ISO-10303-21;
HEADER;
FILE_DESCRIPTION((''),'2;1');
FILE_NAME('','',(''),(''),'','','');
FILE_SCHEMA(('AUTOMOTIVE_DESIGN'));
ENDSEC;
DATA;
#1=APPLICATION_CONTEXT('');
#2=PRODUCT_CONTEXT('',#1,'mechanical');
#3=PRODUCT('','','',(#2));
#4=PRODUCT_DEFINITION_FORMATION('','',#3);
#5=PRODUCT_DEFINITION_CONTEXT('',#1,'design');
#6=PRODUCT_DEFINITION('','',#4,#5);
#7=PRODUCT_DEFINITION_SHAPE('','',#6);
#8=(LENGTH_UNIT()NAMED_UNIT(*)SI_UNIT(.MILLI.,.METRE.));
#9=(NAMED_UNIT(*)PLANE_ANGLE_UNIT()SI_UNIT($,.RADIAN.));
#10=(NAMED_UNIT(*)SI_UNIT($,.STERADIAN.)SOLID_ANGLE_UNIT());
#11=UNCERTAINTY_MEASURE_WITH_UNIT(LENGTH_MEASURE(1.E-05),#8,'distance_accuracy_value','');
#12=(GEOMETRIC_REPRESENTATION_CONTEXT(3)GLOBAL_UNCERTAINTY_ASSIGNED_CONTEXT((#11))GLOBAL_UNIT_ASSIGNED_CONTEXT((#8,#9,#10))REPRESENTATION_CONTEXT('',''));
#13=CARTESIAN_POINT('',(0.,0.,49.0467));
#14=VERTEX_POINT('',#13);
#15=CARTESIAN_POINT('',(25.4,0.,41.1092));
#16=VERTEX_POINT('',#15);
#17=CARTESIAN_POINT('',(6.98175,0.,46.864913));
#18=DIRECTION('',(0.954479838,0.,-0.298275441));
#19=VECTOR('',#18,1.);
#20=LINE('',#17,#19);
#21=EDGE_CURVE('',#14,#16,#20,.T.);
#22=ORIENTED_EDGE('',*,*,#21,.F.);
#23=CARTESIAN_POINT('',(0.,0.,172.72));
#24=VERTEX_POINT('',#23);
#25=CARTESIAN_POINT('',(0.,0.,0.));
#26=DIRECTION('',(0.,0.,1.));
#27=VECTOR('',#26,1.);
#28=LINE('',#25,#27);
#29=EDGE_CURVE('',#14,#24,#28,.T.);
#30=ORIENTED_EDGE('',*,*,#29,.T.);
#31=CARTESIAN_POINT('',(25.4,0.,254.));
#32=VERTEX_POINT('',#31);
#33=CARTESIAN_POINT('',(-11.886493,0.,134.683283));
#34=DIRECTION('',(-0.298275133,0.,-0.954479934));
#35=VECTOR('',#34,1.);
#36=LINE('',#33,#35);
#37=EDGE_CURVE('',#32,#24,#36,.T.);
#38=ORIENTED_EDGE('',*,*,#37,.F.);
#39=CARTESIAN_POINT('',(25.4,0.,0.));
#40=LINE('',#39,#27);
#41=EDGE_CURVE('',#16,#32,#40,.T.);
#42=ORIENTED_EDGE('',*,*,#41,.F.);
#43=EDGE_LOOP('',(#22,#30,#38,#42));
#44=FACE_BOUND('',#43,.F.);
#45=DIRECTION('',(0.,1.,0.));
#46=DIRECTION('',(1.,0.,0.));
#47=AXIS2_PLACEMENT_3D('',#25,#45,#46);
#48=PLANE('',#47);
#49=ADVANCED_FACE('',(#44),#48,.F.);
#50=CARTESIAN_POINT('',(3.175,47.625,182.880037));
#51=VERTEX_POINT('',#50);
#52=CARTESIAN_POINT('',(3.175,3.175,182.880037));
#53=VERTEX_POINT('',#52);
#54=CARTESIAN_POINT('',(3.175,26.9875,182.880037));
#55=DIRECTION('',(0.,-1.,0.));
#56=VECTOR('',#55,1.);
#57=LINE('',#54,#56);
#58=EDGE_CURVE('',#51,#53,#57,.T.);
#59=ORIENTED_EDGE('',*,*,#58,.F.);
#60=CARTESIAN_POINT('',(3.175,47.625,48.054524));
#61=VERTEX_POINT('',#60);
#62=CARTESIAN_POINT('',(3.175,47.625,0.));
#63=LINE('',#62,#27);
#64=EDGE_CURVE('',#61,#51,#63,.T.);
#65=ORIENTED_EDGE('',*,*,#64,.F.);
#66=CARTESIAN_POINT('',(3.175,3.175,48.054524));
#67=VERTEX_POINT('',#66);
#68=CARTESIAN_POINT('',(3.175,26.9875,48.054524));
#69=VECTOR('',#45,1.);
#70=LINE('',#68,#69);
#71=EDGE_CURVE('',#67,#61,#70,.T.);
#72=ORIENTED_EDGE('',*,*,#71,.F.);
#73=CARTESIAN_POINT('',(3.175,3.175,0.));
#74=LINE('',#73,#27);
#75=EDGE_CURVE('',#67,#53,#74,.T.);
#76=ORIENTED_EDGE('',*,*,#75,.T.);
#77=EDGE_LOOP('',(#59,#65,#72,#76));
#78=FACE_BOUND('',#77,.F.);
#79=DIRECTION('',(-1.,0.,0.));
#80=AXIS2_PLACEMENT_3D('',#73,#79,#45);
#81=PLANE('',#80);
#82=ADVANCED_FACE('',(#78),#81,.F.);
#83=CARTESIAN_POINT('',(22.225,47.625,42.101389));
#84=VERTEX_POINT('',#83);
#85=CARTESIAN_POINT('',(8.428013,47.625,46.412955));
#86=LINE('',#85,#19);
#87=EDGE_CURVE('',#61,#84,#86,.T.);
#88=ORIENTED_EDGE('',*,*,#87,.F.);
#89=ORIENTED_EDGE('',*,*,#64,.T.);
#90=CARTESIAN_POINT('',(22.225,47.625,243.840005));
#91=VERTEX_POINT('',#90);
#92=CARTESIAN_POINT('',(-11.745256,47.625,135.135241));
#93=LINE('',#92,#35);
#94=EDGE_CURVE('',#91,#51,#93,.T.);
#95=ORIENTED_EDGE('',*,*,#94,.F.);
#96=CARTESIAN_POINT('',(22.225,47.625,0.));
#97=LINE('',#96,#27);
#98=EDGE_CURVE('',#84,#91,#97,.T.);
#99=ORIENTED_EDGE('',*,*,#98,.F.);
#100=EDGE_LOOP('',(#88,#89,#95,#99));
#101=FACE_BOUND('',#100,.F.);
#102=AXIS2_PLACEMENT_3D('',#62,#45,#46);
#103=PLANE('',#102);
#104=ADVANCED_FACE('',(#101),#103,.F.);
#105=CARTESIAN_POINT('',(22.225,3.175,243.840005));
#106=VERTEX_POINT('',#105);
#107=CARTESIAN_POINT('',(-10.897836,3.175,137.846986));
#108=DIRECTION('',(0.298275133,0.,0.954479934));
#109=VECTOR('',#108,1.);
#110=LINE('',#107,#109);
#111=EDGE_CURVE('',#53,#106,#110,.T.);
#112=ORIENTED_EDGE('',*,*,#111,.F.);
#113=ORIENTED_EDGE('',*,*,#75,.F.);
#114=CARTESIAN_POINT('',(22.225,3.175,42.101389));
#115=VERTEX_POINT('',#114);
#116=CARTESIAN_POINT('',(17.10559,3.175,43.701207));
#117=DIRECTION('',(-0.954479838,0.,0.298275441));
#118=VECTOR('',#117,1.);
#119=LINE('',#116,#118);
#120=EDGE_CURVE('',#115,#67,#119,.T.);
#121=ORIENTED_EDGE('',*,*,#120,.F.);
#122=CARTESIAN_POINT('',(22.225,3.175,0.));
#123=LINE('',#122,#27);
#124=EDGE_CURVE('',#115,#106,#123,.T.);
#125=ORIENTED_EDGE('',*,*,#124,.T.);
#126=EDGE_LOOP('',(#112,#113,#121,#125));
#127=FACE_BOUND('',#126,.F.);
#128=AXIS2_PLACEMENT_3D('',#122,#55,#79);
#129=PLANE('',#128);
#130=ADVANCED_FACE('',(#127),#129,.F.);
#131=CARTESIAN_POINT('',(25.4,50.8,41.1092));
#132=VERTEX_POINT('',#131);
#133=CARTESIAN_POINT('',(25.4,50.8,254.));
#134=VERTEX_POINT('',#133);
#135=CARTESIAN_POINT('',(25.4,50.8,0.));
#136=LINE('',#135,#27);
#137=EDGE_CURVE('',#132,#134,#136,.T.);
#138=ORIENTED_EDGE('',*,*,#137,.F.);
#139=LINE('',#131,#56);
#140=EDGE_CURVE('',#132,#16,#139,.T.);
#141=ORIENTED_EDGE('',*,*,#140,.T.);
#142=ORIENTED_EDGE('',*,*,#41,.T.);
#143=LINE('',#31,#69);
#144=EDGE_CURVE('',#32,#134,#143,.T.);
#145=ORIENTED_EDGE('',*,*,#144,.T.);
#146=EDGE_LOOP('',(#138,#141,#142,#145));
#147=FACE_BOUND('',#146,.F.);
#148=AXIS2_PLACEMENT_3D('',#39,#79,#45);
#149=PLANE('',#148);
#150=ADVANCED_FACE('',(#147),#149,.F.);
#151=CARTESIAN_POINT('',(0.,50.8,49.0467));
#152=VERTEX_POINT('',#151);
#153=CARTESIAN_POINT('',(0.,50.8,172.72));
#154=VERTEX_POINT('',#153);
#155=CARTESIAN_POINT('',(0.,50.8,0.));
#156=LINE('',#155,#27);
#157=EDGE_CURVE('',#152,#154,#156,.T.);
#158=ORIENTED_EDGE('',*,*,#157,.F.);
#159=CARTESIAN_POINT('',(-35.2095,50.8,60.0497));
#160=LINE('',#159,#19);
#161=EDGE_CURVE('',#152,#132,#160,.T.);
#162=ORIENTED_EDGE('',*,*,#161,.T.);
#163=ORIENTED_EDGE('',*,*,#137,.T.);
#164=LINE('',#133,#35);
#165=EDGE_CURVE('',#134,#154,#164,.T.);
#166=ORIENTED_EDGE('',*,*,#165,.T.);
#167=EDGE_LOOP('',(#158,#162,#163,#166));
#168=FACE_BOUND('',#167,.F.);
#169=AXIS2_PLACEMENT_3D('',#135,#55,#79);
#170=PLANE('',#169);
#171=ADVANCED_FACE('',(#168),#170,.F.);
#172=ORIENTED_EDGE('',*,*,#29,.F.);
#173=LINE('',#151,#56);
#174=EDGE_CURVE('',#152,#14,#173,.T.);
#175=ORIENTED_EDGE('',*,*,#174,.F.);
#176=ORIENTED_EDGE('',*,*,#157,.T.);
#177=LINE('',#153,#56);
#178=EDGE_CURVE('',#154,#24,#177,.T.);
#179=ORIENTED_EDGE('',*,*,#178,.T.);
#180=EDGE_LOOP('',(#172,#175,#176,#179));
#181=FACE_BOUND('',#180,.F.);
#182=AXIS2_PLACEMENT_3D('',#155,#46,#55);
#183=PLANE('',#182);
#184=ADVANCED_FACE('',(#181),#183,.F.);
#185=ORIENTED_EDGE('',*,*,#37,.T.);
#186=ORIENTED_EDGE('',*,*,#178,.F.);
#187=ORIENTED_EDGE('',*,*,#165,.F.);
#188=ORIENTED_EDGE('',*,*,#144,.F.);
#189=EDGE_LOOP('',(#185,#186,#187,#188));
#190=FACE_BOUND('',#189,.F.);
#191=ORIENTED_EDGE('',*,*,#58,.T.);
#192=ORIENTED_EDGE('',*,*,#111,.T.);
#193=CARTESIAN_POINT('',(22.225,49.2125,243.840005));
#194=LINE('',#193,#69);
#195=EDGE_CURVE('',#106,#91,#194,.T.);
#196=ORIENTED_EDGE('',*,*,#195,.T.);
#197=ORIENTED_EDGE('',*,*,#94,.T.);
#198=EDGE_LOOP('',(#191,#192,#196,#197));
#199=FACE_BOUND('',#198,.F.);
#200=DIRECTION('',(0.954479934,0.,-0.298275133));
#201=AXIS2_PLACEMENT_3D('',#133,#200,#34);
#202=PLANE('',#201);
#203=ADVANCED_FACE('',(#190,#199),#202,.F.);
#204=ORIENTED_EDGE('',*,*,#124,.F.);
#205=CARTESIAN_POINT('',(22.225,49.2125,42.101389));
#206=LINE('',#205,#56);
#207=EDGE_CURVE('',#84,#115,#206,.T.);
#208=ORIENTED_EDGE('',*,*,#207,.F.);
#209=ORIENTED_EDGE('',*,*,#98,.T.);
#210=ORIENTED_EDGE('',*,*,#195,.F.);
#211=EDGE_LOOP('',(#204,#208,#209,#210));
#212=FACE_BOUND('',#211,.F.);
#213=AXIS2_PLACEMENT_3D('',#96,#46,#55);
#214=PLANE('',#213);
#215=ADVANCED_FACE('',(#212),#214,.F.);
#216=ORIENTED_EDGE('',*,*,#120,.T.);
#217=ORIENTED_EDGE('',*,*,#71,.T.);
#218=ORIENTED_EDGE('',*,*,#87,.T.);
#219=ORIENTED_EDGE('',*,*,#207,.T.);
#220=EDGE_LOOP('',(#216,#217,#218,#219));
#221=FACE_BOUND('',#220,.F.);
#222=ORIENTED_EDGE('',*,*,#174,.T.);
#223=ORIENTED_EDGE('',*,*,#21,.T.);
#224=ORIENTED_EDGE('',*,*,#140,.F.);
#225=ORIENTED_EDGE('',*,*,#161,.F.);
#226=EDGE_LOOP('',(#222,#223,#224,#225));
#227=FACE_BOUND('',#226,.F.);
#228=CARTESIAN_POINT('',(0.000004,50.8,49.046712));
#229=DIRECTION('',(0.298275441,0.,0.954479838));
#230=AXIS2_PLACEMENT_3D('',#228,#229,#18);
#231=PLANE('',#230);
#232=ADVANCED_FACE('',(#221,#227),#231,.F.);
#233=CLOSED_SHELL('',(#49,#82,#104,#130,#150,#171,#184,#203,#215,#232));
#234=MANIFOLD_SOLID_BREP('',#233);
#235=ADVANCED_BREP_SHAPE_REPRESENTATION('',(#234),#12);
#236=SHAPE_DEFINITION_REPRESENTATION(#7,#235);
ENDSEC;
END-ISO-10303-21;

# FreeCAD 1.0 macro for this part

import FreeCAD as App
import Part
import Sketcher

V = App.Vector
Q = App.Units.Quantity

doc = App.newDocument("Part")
body = doc.addObject("PartDesign::Body", "Body")

# Sketch on XY plane
sketch1 = body.newObject("Sketcher::SketchObject", "Sketch")
sketch1.AttachmentSupport = (doc.getObject("XY_Plane"), [""])
sketch1.MapMode = "FlatFace"
sketch1.addGeometry(Part.LineSegment(V(0, 50.8, 0), V(0, 0, 0)), False)
sketch1.addGeometry(Part.LineSegment(V(0, 0, 0), V(25.4, 0, 0)), False)
sketch1.addGeometry(Part.LineSegment(V(25.4, 0, 0), V(25.4, 50.8, 0)), False)
sketch1.addGeometry(Part.LineSegment(V(25.4, 50.8, 0), V(0, 50.8, 0)), False)
sketch1.addGeometry(Part.LineSegment(V(3.175, 47.625, 0), V(22.225, 47.625, 0)), False)
sketch1.addGeometry(Part.LineSegment(V(22.225, 47.625, 0), V(22.225, 3.175, 0)), False)
sketch1.addGeometry(Part.LineSegment(V(22.225, 3.175, 0), V(3.175, 3.175, 0)), False)
sketch1.addGeometry(Part.LineSegment(V(3.175, 3.175, 0), V(3.175, 47.625, 0)), False)
sketch1.addConstraint(Sketcher.Constraint("Coincident", 0, 2, 1, 1))
sketch1.addConstraint(Sketcher.Constraint("Coincident", 1, 2, 2, 1))
sketch1.addConstraint(Sketcher.Constraint("Coincident", 2, 2, 3, 1))
sketch1.addConstraint(Sketcher.Constraint("Coincident", 3, 2, 0, 1))
sketch1.addConstraint(Sketcher.Constraint("Coincident", 4, 2, 5, 1))
sketch1.addConstraint(Sketcher.Constraint("Coincident", 5, 2, 6, 1))
sketch1.addConstraint(Sketcher.Constraint("Coincident", 6, 2, 7, 1))
sketch1.addConstraint(Sketcher.Constraint("Coincident", 7, 2, 4, 1))
sketch1.addConstraint(Sketcher.Constraint("Vertical", 0))
sketch1.addConstraint(Sketcher.Constraint("Horizontal", 1))
sketch1.addConstraint(Sketcher.Constraint("Vertical", 2))
sketch1.addConstraint(Sketcher.Constraint("Horizontal", 3))
sketch1.addConstraint(Sketcher.Constraint("Horizontal", 4))
sketch1.addConstraint(Sketcher.Constraint("Vertical", 5))
sketch1.addConstraint(Sketcher.Constraint("Horizontal", 6))
sketch1.addConstraint(Sketcher.Constraint("Vertical", 7))
sketch1.addConstraint(Sketcher.Constraint("Coincident", 0, 2, -1, 1))
sketch1.addConstraint(Sketcher.Constraint("DistanceX", 1, 1, 1, 2, Q("1 in")))
sketch1.addConstraint(Sketcher.Constraint("DistanceY", 0, 2, 0, 1, Q("2 in")))
sketch1.addConstraint(Sketcher.Constraint("DistanceY", -1, 1, 5, 2, Q("0.125 in")))
sketch1.addConstraint(Sketcher.Constraint("DistanceX", -1, 1, 6, 2, Q("0.125 in")))
sketch1.addConstraint(Sketcher.Constraint("DistanceX", 4, 2, 2, 2, Q("0.125 in")))
sketch1.addConstraint(Sketcher.Constraint("DistanceY", 4, 2, 2, 2, Q("0.125 in")))
pad1 = body.newObject("PartDesign::Pad", "Pad")
pad1.Profile = sketch1
pad1.Length = Q("10 in")

# Sketch on XZ plane
sketch2 = body.newObject("Sketcher::SketchObject", "Sketch001")
sketch2.AttachmentSupport = (doc.getObject("XZ_Plane"), [""])
sketch2.MapMode = "FlatFace"
sketch2.AttachmentOffset = App.Placement(V(0, 0, -2 * 25.4), App.Rotation())
sketch2.addGeometry(Part.LineSegment(V(0, 172.72, 0), V(0, 254, 0)), False)
sketch2.addGeometry(Part.LineSegment(V(0, 254, 0), V(25.4, 254, 0)), False)
sketch2.addGeometry(Part.LineSegment(V(25.4, 254, 0), V(-0.000012, 172.720004, 0)), False)
sketch2.addGeometry(Part.LineSegment(V(0.000004, 49.046712, 0), V(25.4, 41.1092, 0)), False)
sketch2.addGeometry(Part.LineSegment(V(25.4, 41.1092, 0), V(25.4, 0, 0)), False)
sketch2.addGeometry(Part.LineSegment(V(25.4, 0, 0), V(0, 0, 0)), False)
sketch2.addGeometry(Part.LineSegment(V(0, 0, 0), V(0, 49.0467, 0)), False)
sketch2.addConstraint(Sketcher.Constraint("Coincident", 0, 2, 1, 1))
sketch2.addConstraint(Sketcher.Constraint("Coincident", 1, 2, 2, 1))
sketch2.addConstraint(Sketcher.Constraint("Coincident", 2, 2, 0, 1))
sketch2.addConstraint(Sketcher.Constraint("Coincident", 3, 2, 4, 1))
sketch2.addConstraint(Sketcher.Constraint("Coincident", 4, 2, 5, 1))
sketch2.addConstraint(Sketcher.Constraint("Coincident", 5, 2, 6, 1))
sketch2.addConstraint(Sketcher.Constraint("Coincident", 6, 2, 3, 1))
sketch2.addConstraint(Sketcher.Constraint("Vertical", 0))
sketch2.addConstraint(Sketcher.Constraint("Horizontal", 1))
sketch2.addConstraint(Sketcher.Constraint("Vertical", 4))
sketch2.addConstraint(Sketcher.Constraint("Horizontal", 5))
sketch2.addConstraint(Sketcher.Constraint("Vertical", 6))
sketch2.addConstraint(Sketcher.Constraint("Coincident", 5, 2, -1, 1))
sketch2.addConstraint(Sketcher.Constraint("PointOnObject", 0, 2, -2))
sketch2.addConstraint(Sketcher.Constraint("Perpendicular", 2, 3))
sketch2.addConstraint(Sketcher.Constraint("Vertical", 1, 2, 3, 2))
sketch2.addConstraint(Sketcher.Constraint("DistanceX", 1, 1, 1, 2, Q("1 in")))
sketch2.addConstraint(Sketcher.Constraint("DistanceY", 0, 1, 0, 2, Q("3.2 in")))
sketch2.addConstraint(Sketcher.Constraint("DistanceY", -1, 1, 0, 2, Q("10 in")))
sketch2.addConstraint(Sketcher.Constraint("DistanceY", 4, 2, 4, 1, Q("41.1092 mm")))
pocket1 = body.newObject("PartDesign::Pocket", "Pocket")
pocket1.Profile = sketch2
pocket1.Length = Q("10 in")
pocket1.Reversed = True

doc.recompute()
